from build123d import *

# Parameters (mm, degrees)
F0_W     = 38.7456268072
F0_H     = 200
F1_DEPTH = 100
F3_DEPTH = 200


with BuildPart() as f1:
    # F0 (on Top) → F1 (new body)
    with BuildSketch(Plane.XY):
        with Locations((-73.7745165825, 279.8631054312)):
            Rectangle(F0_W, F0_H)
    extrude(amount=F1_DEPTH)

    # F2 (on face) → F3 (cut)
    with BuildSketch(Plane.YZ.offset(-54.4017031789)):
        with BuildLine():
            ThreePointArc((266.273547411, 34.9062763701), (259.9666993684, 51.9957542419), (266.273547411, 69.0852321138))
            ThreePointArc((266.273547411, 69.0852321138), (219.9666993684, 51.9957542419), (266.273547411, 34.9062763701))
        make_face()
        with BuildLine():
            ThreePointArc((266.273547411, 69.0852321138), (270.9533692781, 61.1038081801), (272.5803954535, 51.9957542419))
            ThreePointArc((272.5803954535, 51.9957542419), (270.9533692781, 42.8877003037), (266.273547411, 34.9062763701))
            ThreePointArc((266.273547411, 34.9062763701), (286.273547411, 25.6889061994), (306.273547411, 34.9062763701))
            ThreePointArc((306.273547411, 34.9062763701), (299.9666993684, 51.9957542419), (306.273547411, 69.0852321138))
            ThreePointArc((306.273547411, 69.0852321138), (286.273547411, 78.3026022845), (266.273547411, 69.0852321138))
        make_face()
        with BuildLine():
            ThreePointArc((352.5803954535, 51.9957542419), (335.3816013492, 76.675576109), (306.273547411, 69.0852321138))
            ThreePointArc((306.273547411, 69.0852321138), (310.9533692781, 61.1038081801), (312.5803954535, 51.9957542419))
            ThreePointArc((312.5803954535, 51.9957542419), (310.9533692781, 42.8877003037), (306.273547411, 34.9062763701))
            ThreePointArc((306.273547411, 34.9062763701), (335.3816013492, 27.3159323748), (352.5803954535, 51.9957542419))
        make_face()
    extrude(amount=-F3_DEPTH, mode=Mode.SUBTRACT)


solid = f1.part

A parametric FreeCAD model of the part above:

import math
import FreeCAD as App
import Part
import Sketcher
from FreeCAD import Vector
Q = App.Units.Quantity

doc = App.newDocument("Part")
body = doc.addObject("PartDesign::Body", "Body")
body.AllowCompound = True

# Sketch on XY plane
sketch1 = doc.addObject("Sketcher::SketchObject", "Sketch")
body.addObject(sketch1)
sketch1.AttachmentSupport = (doc.XY_Plane, [""])
sketch1.MapMode = "FlatFace"
sketch1.addGeometry(Part.LineSegment(Vector(-93, 380, 0), Vector(-93, 180, 0)), False)
sketch1.addGeometry(Part.LineSegment(Vector(-93, 180, 0), Vector(-54, 180, 0)), False)
sketch1.addGeometry(Part.LineSegment(Vector(-54, 180, 0), Vector(-54, 380, 0)), False)
sketch1.addGeometry(Part.LineSegment(Vector(-54, 380, 0), Vector(-93, 380, 0)), False)
sketch1.addConstraint(Sketcher.Constraint("Coincident", 0, 2, 1, 1))
sketch1.addConstraint(Sketcher.Constraint("Coincident", 1, 2, 2, 1))
sketch1.addConstraint(Sketcher.Constraint("Coincident", 2, 2, 3, 1))
sketch1.addConstraint(Sketcher.Constraint("Coincident", 3, 2, 0, 1))
sketch1.addConstraint(Sketcher.Constraint("Vertical", 0))
sketch1.addConstraint(Sketcher.Constraint("Horizontal", 1))
sketch1.addConstraint(Sketcher.Constraint("Vertical", 2))
sketch1.addConstraint(Sketcher.Constraint("Horizontal", 3))
sketch1.addConstraint(Sketcher.Constraint("DistanceY", 0, 2, 0, 1, Q("200 mm")))
sketch1.addConstraint(Sketcher.Constraint("DistanceX", 1, 1, 1, 2, Q("38.745627 mm")))
sketch1.addConstraint(Sketcher.Constraint("DistanceX", 0, 2, -1, 1, Q("93.14733 mm")))
sketch1.addConstraint(Sketcher.Constraint("DistanceY", -1, 1, 0, 2, Q("179.863105 mm")))
pad1 = doc.addObject("PartDesign::Pad", "Pad")
body.addObject(pad1)
pad1.Profile = sketch1
pad1.Length = 100

# Sketch on YZ plane
sketch2 = doc.addObject("Sketcher::SketchObject", "Sketch001")
body.addObject(sketch2)
sketch2.AttachmentSupport = (doc.YZ_Plane, [""])
sketch2.MapMode = "FlatFace"
sketch2.AttachmentOffset = App.Placement(Vector(0, 0, -54.401703), App.Rotation())
sketch2.addGeometry(Part.ArcOfCircle(Part.Circle(Vector(286, 52, 0), Vector(0, 0, 1), 26), math.radians(139), math.radians(221)), False)
sketch2.addGeometry(Part.ArcOfCircle(Part.Circle(Vector(246, 52, 0), Vector(0, 0, 1), 26), math.radians(41), math.radians(319)), False)
sketch2.addGeometry(Part.ArcOfCircle(Part.Circle(Vector(246, 52, 0), Vector(0, 0, 1), 26), math.radians(0), math.radians(41)), False)
sketch2.addGeometry(Part.ArcOfCircle(Part.Circle(Vector(246, 52, 0), Vector(0, 0, 1), 26), math.radians(-41), math.radians(0)), False)
sketch2.addGeometry(Part.ArcOfCircle(Part.Circle(Vector(286, 52, 0), Vector(0, 0, 1), 26), math.radians(-139), math.radians(-41)), False)
sketch2.addGeometry(Part.ArcOfCircle(Part.Circle(Vector(326, 52, 0), Vector(0, 0, 1), 26), math.radians(139), math.radians(221)), False)
sketch2.addGeometry(Part.ArcOfCircle(Part.Circle(Vector(286, 52, 0), Vector(0, 0, 1), 26), math.radians(41), math.radians(139)), False)
sketch2.addGeometry(Part.ArcOfCircle(Part.Circle(Vector(326, 52, 0), Vector(0, 0, 1), 26), math.radians(0), math.radians(139)), False)
sketch2.addGeometry(Part.ArcOfCircle(Part.Circle(Vector(286, 52, 0), Vector(0, 0, 1), 26), math.radians(0), math.radians(41)), False)
sketch2.addGeometry(Part.ArcOfCircle(Part.Circle(Vector(286, 52, 0), Vector(0, 0, 1), 26), math.radians(-41), math.radians(0)), False)
sketch2.addGeometry(Part.ArcOfCircle(Part.Circle(Vector(326, 52, 0), Vector(0, 0, 1), 26), math.radians(-139), math.radians(0)), False)
sketch2.addConstraint(Sketcher.Constraint("Coincident", 0, 1, 1, 1))
sketch2.addConstraint(Sketcher.Constraint("Coincident", 1, 2, 0, 2))
sketch2.addConstraint(Sketcher.Constraint("Tangent", 2, 1, 3, 2))
sketch2.addConstraint(Sketcher.Constraint("Coincident", 3, 1, 4, 1))
sketch2.addConstraint(Sketcher.Constraint("Coincident", 4, 2, 5, 2))
sketch2.addConstraint(Sketcher.Constraint("Coincident", 5, 1, 6, 1))
sketch2.addConstraint(Sketcher.Constraint("Coincident", 6, 2, 2, 2))
sketch2.addConstraint(Sketcher.Constraint("Coincident", 7, 2, 8, 2))
sketch2.addConstraint(Sketcher.Constraint("Tangent", 8, 1, 9, 2))
sketch2.addConstraint(Sketcher.Constraint("Coincident", 9, 1, 10, 1))
sketch2.addConstraint(Sketcher.Constraint("Tangent", 10, 2, 7, 1))
sketch2.addConstraint(Sketcher.Constraint("Coincident", 2, 3, 1, 3))
sketch2.addConstraint(Sketcher.Constraint("Coincident", 4, 3, 0, 3))
sketch2.addConstraint(Sketcher.Constraint("Coincident", 6, 3, 0, 3))
sketch2.addConstraint(Sketcher.Constraint("Coincident", 7, 3, 5, 3))
sketch2.addConstraint(Sketcher.Constraint("Coincident", 8, 3, 0, 3))
sketch2.addConstraint(Sketcher.Constraint("Coincident", 3, 1, 1, 2))
sketch2.addConstraint(Sketcher.Constraint("Coincident", 6, 2, 0, 1))
sketch2.addConstraint(Sketcher.Constraint("Coincident", 7, 2, 5, 1))
sketch2.addConstraint(Sketcher.Constraint("Coincident", 9, 1, 4, 2))
sketch2.addConstraint(Sketcher.Constraint("Equal", 0, 1))
sketch2.addConstraint(Sketcher.Constraint("Equal", 4, 5))
sketch2.addConstraint(Sketcher.Constraint("Horizontal", 0, 3, 1, 3))
sketch2.addConstraint(Sketcher.Constraint("Horizontal", 4, 3, 5, 3))
sketch2.addConstraint(Sketcher.Constraint("Horizontal", 10, 3, 2, 1))
sketch2.addConstraint(Sketcher.Constraint("Horizontal", 3, 1, 4, 2))
sketch2.addConstraint(Sketcher.Constraint("Horizontal", 2, 1, 8, 1))
sketch2.addConstraint(Sketcher.Constraint("Horizontal", 8, 1, 10, 2))
sketch2.addConstraint(Sketcher.Constraint("DistanceX", 1, 3, 0, 3, Q("40 mm")))
sketch2.addConstraint(Sketcher.Constraint("Radius", 0, Q("26.306848 mm")))
sketch2.addConstraint(Sketcher.Constraint("DistanceX", -1, 1, 0, 3, Q("286.273547 mm")))
sketch2.addConstraint(Sketcher.Constraint("DistanceY", -1, 1, 0, 3, Q("51.995754 mm")))
pocket1 = doc.addObject("PartDesign::Pocket", "Pocket")
body.addObject(pocket1)
pocket1.Profile = sketch2
pocket1.Length = 200

doc.recompute()
